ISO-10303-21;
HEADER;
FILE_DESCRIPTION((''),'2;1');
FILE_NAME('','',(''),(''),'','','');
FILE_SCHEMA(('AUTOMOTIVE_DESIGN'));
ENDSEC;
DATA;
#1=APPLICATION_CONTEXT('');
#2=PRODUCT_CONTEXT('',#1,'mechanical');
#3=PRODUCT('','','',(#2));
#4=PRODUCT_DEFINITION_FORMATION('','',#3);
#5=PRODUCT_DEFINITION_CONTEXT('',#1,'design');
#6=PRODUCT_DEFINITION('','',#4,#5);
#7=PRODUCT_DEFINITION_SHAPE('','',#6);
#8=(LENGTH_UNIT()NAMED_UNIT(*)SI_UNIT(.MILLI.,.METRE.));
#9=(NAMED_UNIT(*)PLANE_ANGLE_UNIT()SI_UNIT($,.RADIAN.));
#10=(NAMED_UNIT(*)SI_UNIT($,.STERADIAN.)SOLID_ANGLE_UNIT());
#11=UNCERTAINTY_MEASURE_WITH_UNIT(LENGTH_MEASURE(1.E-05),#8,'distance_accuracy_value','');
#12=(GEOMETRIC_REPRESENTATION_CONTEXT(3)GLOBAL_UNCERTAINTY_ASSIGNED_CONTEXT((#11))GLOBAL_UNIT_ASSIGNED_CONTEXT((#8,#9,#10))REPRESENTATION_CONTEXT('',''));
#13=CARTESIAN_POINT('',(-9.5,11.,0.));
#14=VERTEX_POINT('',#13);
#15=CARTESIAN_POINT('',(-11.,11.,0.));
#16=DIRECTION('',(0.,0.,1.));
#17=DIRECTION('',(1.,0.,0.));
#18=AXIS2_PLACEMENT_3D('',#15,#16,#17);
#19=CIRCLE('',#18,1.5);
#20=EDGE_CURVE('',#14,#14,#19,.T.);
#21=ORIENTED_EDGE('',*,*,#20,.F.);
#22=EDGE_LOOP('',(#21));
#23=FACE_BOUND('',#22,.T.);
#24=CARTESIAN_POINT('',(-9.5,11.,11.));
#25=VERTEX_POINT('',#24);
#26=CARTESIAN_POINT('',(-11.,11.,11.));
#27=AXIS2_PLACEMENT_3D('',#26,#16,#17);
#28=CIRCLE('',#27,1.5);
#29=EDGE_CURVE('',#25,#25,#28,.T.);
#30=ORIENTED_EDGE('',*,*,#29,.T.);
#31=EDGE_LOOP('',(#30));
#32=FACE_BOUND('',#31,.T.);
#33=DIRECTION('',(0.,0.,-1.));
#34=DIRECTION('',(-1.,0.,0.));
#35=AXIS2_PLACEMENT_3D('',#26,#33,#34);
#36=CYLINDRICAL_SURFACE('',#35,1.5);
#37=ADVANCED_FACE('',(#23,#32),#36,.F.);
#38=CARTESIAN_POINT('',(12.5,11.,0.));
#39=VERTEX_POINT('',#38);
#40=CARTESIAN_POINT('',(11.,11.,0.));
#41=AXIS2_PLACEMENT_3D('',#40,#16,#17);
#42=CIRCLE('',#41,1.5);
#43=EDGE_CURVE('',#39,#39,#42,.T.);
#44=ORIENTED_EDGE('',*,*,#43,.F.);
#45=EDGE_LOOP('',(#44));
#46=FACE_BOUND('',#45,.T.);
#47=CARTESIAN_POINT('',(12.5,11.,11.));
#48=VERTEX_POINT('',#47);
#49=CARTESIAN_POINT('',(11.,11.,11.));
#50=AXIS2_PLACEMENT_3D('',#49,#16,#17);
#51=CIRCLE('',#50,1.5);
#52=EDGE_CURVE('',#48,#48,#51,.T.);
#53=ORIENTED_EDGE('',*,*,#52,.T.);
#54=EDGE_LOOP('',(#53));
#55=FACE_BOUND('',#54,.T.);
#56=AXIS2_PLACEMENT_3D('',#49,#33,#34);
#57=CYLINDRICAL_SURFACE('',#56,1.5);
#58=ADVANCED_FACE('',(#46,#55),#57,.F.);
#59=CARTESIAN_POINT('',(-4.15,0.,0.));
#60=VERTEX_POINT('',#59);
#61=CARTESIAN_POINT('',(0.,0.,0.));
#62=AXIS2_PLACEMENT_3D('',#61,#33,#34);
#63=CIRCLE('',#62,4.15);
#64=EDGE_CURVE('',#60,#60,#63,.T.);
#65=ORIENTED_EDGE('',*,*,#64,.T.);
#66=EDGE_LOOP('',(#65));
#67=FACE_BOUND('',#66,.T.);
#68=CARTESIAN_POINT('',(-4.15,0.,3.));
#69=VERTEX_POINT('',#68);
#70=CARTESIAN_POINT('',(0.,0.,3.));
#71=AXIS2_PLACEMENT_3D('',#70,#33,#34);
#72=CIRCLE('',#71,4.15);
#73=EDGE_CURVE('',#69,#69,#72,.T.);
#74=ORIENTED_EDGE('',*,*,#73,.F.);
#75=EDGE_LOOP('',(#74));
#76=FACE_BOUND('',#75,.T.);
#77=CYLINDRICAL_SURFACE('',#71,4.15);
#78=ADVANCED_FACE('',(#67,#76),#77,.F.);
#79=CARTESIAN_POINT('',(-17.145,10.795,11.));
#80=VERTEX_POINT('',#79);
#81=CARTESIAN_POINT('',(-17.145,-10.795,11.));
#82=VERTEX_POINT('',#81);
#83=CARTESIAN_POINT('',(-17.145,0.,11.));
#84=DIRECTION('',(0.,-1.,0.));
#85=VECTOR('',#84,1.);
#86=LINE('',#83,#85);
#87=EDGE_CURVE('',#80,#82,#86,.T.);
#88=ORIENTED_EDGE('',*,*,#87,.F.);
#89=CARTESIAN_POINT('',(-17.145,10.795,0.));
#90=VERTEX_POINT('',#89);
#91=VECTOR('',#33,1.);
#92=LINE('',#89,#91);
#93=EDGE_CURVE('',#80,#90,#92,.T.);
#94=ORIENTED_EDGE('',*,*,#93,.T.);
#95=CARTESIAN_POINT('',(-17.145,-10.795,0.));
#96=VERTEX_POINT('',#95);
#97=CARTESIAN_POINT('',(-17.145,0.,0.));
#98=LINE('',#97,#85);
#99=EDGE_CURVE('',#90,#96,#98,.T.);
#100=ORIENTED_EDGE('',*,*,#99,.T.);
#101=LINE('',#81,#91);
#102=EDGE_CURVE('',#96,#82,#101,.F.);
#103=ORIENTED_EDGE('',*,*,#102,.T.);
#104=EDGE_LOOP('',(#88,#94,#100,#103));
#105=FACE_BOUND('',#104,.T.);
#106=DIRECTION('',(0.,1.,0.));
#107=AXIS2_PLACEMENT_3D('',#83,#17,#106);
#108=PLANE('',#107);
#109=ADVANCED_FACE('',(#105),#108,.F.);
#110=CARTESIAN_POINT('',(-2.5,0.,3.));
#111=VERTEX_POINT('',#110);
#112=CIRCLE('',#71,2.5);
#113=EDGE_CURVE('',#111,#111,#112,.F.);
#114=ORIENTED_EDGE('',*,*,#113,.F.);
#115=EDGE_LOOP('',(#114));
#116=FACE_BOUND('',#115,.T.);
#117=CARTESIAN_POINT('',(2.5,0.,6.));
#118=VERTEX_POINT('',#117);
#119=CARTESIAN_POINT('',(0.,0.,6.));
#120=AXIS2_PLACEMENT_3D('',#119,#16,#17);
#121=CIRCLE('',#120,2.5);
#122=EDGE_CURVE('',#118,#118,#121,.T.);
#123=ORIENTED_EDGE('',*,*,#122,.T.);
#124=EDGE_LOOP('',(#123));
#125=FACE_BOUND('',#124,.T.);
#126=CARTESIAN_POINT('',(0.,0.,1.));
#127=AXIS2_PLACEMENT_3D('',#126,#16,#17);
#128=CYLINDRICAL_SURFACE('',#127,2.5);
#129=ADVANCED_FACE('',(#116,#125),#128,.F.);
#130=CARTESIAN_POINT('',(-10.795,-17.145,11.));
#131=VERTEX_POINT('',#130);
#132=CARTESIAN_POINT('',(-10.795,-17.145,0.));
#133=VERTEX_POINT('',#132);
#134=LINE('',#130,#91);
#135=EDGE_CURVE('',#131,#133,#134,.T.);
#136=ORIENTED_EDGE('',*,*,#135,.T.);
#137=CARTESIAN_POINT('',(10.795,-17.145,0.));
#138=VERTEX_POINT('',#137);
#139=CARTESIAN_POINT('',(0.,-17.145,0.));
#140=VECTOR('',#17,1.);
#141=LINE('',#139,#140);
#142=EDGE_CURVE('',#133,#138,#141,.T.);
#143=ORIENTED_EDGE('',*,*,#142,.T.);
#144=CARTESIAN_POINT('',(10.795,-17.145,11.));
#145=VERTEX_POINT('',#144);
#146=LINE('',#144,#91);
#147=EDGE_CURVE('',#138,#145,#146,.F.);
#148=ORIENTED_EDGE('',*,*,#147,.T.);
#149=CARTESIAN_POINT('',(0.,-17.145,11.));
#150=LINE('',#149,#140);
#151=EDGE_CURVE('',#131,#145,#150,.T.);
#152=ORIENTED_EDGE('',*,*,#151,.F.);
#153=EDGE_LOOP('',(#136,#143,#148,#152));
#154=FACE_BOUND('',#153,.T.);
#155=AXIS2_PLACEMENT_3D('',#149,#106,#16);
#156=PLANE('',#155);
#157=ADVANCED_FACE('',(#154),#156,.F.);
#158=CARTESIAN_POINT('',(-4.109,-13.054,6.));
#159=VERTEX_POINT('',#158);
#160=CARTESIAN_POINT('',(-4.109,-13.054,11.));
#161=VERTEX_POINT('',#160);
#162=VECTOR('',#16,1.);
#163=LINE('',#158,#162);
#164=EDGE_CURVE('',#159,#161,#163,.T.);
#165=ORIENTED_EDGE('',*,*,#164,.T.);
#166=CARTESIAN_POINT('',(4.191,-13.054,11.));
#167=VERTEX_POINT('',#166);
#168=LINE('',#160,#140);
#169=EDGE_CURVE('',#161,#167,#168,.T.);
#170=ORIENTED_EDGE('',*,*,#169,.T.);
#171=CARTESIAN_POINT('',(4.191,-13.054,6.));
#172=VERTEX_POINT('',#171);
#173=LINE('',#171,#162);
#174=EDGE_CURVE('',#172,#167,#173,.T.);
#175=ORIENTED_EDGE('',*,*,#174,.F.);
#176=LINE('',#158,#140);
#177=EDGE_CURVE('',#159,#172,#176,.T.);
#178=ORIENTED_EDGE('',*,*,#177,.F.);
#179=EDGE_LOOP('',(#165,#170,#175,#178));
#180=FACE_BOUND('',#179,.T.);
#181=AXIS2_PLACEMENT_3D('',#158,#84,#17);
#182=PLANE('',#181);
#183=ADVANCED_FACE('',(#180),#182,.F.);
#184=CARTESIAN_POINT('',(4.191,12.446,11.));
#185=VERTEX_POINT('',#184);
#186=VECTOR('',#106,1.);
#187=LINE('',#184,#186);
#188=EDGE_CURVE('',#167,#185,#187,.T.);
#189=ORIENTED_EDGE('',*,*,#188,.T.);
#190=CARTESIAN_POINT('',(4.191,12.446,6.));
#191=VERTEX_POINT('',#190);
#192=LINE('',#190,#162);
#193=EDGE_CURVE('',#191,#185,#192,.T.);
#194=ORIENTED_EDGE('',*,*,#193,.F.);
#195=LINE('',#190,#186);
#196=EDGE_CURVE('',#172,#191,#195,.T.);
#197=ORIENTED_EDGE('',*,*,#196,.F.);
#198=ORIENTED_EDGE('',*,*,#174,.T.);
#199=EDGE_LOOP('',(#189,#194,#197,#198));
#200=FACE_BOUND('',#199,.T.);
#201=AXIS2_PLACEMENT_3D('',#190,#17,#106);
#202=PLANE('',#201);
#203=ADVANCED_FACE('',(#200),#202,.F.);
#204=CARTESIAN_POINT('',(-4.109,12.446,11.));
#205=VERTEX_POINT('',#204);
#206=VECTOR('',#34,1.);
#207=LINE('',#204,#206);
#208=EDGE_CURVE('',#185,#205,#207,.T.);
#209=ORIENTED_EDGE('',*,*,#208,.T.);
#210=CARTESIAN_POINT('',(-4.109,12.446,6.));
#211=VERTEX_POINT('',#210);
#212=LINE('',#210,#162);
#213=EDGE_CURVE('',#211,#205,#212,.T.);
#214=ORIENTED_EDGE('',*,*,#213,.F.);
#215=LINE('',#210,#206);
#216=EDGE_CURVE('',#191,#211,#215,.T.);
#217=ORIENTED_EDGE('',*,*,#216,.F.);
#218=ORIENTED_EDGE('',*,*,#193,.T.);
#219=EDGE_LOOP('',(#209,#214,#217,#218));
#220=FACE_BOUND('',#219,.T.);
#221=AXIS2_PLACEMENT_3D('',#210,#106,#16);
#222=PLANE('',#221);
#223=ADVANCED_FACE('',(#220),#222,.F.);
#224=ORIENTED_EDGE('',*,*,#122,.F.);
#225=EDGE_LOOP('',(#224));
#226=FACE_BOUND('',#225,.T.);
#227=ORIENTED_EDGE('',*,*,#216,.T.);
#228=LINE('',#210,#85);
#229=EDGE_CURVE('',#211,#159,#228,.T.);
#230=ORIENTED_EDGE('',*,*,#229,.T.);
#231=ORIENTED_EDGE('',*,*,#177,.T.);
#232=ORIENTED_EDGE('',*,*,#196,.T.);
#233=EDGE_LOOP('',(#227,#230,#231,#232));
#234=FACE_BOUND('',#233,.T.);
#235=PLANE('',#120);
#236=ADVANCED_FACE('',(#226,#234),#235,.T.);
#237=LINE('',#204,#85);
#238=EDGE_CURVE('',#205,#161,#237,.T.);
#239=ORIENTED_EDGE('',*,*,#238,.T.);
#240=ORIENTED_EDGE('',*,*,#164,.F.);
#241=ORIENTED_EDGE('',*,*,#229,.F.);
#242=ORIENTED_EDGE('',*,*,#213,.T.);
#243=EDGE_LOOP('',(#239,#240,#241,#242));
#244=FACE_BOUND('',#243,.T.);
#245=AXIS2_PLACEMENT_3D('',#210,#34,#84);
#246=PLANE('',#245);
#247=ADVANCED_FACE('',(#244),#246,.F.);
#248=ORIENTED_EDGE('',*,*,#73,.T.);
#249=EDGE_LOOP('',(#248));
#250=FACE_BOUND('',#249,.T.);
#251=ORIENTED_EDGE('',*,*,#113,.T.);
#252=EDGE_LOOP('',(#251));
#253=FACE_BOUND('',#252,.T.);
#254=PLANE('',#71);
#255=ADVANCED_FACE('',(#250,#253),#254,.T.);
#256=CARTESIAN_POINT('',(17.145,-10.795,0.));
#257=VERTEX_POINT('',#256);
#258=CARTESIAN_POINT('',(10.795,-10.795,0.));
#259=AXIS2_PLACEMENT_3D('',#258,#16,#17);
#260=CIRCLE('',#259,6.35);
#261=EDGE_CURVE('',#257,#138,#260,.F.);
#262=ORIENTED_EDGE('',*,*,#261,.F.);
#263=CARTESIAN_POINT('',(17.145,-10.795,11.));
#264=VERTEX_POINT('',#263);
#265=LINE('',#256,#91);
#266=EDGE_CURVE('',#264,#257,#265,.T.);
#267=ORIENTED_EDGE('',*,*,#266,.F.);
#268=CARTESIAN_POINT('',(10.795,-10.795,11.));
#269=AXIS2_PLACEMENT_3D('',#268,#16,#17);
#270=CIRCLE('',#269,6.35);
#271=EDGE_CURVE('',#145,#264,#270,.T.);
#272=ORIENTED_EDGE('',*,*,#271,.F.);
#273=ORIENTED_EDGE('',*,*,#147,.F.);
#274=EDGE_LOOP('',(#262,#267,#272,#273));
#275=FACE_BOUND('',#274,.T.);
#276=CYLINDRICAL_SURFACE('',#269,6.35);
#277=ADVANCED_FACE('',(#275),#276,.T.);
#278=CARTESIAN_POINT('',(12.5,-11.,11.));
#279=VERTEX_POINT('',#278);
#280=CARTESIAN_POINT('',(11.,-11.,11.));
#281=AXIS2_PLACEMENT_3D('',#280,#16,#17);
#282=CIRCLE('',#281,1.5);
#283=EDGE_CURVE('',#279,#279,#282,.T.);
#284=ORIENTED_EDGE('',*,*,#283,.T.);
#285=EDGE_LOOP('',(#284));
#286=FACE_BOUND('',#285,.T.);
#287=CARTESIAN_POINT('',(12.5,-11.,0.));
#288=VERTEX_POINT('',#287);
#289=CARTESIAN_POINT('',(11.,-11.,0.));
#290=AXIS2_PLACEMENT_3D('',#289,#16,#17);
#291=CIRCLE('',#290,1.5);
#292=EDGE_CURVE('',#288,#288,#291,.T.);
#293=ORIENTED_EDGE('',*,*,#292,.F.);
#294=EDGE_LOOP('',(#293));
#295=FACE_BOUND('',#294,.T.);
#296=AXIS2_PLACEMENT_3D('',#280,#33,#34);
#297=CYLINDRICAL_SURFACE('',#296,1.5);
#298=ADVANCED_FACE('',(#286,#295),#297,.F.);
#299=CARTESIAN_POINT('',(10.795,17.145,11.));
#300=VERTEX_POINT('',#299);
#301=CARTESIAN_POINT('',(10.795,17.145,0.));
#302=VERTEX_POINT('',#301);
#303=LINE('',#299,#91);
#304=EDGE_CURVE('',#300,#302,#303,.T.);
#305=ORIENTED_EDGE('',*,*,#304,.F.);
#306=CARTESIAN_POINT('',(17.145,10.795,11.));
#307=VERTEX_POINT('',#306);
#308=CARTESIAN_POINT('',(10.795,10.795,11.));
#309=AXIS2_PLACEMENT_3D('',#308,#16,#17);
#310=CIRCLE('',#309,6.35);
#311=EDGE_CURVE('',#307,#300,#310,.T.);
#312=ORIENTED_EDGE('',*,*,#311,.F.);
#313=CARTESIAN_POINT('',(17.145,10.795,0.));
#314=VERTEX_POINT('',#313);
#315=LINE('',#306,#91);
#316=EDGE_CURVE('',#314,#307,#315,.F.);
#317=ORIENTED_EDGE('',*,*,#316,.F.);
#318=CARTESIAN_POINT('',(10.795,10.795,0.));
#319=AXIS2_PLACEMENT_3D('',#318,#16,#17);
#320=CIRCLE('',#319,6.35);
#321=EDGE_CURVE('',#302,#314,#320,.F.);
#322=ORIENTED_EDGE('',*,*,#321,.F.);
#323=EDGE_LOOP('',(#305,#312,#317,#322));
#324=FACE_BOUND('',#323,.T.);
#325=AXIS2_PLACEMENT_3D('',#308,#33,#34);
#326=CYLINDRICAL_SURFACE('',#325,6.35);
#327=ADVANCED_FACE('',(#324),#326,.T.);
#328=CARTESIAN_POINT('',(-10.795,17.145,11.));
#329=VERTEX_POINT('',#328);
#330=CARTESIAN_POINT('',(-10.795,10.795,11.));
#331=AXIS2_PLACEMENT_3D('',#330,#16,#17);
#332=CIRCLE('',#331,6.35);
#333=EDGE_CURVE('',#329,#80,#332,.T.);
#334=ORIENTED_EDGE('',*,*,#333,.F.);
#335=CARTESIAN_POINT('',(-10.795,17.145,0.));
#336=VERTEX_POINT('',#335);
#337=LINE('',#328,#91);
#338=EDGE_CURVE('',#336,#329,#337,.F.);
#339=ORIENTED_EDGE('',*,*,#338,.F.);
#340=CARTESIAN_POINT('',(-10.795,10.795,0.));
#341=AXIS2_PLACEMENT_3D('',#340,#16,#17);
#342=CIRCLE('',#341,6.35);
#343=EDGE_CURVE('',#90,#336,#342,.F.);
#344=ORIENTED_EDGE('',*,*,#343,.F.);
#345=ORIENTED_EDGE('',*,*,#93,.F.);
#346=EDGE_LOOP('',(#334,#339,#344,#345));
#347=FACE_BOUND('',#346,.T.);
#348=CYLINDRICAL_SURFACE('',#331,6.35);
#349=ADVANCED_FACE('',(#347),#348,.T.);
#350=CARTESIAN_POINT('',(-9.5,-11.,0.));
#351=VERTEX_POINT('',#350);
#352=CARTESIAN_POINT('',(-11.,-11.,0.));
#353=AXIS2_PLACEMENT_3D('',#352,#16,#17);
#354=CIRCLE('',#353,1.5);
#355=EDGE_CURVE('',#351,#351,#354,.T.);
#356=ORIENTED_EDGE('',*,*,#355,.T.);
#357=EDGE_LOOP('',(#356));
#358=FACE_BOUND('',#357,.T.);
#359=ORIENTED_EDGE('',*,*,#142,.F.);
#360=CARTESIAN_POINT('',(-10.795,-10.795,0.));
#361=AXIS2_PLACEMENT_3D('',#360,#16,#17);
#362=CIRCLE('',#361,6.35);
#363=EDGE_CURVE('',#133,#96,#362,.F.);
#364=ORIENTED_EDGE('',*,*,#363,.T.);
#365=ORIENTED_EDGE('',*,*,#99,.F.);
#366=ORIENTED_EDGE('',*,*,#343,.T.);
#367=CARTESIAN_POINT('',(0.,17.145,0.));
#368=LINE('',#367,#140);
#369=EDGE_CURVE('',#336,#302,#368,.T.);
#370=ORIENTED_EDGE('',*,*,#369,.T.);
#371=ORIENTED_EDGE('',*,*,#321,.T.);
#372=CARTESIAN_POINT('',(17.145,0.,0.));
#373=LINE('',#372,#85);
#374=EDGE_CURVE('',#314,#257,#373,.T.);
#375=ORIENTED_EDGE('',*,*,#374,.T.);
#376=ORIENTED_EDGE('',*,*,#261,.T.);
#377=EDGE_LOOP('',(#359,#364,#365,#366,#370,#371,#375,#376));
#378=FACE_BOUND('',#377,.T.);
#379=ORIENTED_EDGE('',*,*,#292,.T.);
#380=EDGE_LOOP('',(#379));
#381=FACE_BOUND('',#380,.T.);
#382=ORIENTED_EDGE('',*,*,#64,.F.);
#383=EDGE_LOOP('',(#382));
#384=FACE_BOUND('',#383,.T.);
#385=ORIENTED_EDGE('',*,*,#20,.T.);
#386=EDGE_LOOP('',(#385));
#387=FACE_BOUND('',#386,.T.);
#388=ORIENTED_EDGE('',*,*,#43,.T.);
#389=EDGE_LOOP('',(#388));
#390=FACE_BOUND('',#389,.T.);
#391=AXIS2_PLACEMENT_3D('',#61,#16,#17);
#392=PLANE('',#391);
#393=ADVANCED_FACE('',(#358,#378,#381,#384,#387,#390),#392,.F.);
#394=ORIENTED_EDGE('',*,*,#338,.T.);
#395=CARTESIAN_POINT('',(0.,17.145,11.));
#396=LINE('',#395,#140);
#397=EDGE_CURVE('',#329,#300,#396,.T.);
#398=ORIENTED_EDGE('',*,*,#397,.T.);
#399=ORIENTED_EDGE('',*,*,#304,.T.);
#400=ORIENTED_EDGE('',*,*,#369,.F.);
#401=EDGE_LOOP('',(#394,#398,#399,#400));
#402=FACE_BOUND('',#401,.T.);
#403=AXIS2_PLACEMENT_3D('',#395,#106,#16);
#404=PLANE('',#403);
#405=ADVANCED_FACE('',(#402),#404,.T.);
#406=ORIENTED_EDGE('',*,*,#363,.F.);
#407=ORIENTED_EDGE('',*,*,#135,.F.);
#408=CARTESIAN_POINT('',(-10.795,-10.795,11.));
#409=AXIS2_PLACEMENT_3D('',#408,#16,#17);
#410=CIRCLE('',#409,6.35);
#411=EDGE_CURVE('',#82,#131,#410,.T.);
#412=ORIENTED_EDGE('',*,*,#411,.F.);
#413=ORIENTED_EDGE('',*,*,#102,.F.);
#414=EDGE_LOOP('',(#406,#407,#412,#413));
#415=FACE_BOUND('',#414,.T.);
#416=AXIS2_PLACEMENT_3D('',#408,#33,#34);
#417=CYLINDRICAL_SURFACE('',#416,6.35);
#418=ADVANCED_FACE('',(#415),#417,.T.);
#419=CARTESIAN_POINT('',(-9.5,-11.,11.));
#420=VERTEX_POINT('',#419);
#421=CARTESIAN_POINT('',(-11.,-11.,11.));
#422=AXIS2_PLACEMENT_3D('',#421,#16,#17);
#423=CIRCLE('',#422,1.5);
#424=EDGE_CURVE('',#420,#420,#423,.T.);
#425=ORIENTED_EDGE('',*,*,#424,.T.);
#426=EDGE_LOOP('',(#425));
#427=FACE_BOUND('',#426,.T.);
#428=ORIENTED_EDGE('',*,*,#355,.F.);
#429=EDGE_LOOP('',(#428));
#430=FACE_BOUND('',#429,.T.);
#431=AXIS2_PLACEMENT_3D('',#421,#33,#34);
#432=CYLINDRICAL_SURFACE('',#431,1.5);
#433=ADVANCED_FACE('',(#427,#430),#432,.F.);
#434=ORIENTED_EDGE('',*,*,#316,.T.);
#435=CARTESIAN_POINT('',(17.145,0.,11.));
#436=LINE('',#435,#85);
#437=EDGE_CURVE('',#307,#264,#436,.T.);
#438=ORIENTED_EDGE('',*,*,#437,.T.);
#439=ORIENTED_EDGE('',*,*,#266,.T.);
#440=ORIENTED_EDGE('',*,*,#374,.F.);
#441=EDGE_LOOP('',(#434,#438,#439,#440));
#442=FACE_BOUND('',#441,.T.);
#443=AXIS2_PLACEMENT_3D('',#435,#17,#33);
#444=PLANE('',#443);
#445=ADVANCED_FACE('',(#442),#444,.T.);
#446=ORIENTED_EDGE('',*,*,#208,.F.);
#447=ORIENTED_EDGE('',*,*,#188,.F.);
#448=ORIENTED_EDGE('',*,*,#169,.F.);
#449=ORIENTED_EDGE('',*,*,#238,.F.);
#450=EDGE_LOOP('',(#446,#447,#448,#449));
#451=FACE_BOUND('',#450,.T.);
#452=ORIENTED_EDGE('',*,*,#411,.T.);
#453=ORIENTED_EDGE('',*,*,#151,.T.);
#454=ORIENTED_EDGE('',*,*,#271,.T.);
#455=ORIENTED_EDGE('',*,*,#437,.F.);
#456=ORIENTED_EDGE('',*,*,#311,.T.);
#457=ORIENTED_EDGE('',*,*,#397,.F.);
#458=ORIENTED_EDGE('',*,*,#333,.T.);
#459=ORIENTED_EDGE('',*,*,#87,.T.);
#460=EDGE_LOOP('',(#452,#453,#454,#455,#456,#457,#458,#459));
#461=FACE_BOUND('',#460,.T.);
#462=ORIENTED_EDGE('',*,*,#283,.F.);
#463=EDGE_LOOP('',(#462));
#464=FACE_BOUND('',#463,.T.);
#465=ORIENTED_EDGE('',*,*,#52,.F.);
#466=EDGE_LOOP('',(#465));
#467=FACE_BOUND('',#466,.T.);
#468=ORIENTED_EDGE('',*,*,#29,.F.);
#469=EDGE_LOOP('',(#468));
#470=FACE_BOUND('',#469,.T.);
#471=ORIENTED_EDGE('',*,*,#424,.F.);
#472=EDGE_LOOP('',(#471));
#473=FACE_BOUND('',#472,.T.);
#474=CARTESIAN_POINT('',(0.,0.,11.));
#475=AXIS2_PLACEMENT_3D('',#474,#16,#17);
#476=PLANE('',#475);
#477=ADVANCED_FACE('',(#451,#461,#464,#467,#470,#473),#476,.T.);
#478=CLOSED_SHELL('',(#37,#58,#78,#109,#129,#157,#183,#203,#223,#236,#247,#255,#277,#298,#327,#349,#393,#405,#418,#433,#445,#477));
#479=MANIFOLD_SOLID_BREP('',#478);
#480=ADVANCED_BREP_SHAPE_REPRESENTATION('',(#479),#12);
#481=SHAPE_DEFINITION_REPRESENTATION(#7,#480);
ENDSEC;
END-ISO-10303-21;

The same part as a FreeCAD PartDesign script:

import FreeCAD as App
import Part
import Sketcher
Q = App.Units.Quantity


def edges_at(feature, points):
    """Names of the edges that pass closest to the given points."""
    edges = feature.Shape.Edges
    near = lambda p: min(range(len(edges)), key=lambda i: edges[i].distToShape(Part.Vertex(*p))[0])
    return sorted({f"Edge{near(p) + 1}" for p in points})


def add_polygon(sketch, points):
    """Adds a closed chain of lines whose ends are joined by coincident constraints."""
    first, n = sketch.GeometryCount, len(points)
    for a, b in zip(points, points[1:] + points[:1]):
        sketch.addGeometry(Part.LineSegment(App.Vector(*a, 0), App.Vector(*b, 0)), False)
    for i in range(n):
        sketch.addConstraint(Sketcher.Constraint("Coincident", first + i, 2, first + (i + 1) % n, 1))

doc = App.newDocument("Part")
body = doc.addObject("PartDesign::Body", "Body")

# Sketch on XY plane
sketch1 = body.newObject("Sketcher::SketchObject", "Sketch")
sketch1.AttachmentSupport = (doc.getObject("XY_Plane"), [""])
sketch1.MapMode = "FlatFace"
add_polygon(sketch1, [(-17.145, 17.145), (-17.145, -17.145), (17.145, -17.145), (17.145, 17.145)])  # lines 0-3
sketch1.addGeometry(Part.Circle(App.Vector(-11, -11, 0), App.Vector(0, 0, 1), 1.5), False)  # 4
sketch1.addGeometry(Part.Circle(App.Vector(11, -11, 0), App.Vector(0, 0, 1), 1.5), False)  # 5
sketch1.addGeometry(Part.Circle(App.Vector(-11, 11, 0), App.Vector(0, 0, 1), 1.5), False)  # 6
sketch1.addGeometry(Part.Circle(App.Vector(11, 11, 0), App.Vector(0, 0, 1), 1.5), False)  # 7
sketch1.addConstraint([
    Sketcher.Constraint("Vertical", 0),
    Sketcher.Constraint("Horizontal", 1),
    Sketcher.Constraint("Vertical", 2),
    Sketcher.Constraint("Horizontal", 3),
    Sketcher.Constraint("Equal", 4, 5),
    Sketcher.Constraint("Equal", 5, 6),
    Sketcher.Constraint("Equal", 6, 7),
    Sketcher.Constraint("Symmetric", 5, 3, 6, 3, -1, 1),
    Sketcher.Constraint("Symmetric", 4, 3, 7, 3, -1, 1),
    Sketcher.Constraint("Symmetric", 0, 2, 2, 2, -1, 1),
    Sketcher.Constraint("Symmetric", 4, 3, 5, 3, -2),
    Sketcher.Constraint("Equal", 3, 0),
    Sketcher.Constraint("Diameter", 4, Q("3 mm")),
    Sketcher.Constraint("DistanceX", 4, 3, -1, 1, Q("11 mm")),
    Sketcher.Constraint("DistanceY", 4, 3, -1, 1, Q("11 mm")),
    Sketcher.Constraint("DistanceX", 1, 1, 1, 2, Q("34.29 mm")),
])
pad1 = body.newObject("PartDesign::Pad", "Pad")
pad1.Profile = sketch1
pad1.Length = 11

# Sketch on XY plane
sketch2 = body.newObject("Sketcher::SketchObject", "Sketch001")
sketch2.AttachmentSupport = (doc.getObject("XY_Plane"), [""])
sketch2.MapMode = "FlatFace"
sketch2.AttachmentOffset = App.Placement(App.Vector(0, 0, 11), App.Rotation())
add_polygon(sketch2, [(-4.109, 12.446), (-4.109, -13.054), (4.191, -13.054), (4.191, 12.446)])  # lines 0-3
sketch2.addConstraint([
    Sketcher.Constraint("Vertical", 0),
    Sketcher.Constraint("Horizontal", 1),
    Sketcher.Constraint("Vertical", 2),
    Sketcher.Constraint("Horizontal", 3),
    Sketcher.Constraint("DistanceX", 1, 1, 1, 2, Q("8.3 mm")),
    Sketcher.Constraint("DistanceY", 0, 2, 0, 1, Q("25.5 mm")),
    Sketcher.Constraint("DistanceX", 0, 2, -1, 1, Q("4.109 mm")),
    Sketcher.Constraint("DistanceY", 0, 2, -1, 1, Q("13.054 mm")),
])
pocket1 = body.newObject("PartDesign::Pocket", "Pocket")
pocket1.Profile = sketch2
pocket1.Length = 5

# Sketch on XY plane
sketch3 = body.newObject("Sketcher::SketchObject", "Sketch002")
sketch3.AttachmentSupport = (doc.getObject("XY_Plane"), [""])
sketch3.MapMode = "FlatFace"
sketch3.AttachmentOffset = App.Placement(App.Vector(0, 0, 6), App.Rotation())
sketch3.addGeometry(Part.Circle(App.Vector(0, 0, 0), App.Vector(0, 0, 1), 2.5), False)
sketch3.addConstraint([
    Sketcher.Constraint("Coincident", 0, 3, -1, 1),
    Sketcher.Constraint("Diameter", 0, Q("5 mm")),
])
pocket2 = body.newObject("PartDesign::Pocket", "Pocket001")
pocket2.Profile = sketch3
pocket2.Length = 5

# Sketch on XY plane
sketch4 = body.newObject("Sketcher::SketchObject", "Sketch003")
sketch4.AttachmentSupport = (doc.getObject("XY_Plane"), [""])
sketch4.MapMode = "FlatFace"
sketch4.addGeometry(Part.Circle(App.Vector(0, 0, 0), App.Vector(0, 0, 1), 4.15), False)
sketch4.addConstraint([
    Sketcher.Constraint("Coincident", 0, 3, -1, 1),
    Sketcher.Constraint("Diameter", 0, Q("8.3 mm")),
])
pocket3 = body.newObject("PartDesign::Pocket", "Pocket002")
pocket3.Profile = sketch4
pocket3.Length = 3
pocket3.Reversed = True
doc.recompute()

fillet = body.newObject("PartDesign::Fillet", "Fillet")
fillet.Base = (pocket3, edges_at(pocket3, [
    (17.145, -17.145, 5.5),
    (-17.145, -17.145, 5.5),
    (-17.145, 17.145, 5.5),
    (17.145, 17.145, 5.5),
]))
fillet.Radius = 6.35

doc.recompute()
